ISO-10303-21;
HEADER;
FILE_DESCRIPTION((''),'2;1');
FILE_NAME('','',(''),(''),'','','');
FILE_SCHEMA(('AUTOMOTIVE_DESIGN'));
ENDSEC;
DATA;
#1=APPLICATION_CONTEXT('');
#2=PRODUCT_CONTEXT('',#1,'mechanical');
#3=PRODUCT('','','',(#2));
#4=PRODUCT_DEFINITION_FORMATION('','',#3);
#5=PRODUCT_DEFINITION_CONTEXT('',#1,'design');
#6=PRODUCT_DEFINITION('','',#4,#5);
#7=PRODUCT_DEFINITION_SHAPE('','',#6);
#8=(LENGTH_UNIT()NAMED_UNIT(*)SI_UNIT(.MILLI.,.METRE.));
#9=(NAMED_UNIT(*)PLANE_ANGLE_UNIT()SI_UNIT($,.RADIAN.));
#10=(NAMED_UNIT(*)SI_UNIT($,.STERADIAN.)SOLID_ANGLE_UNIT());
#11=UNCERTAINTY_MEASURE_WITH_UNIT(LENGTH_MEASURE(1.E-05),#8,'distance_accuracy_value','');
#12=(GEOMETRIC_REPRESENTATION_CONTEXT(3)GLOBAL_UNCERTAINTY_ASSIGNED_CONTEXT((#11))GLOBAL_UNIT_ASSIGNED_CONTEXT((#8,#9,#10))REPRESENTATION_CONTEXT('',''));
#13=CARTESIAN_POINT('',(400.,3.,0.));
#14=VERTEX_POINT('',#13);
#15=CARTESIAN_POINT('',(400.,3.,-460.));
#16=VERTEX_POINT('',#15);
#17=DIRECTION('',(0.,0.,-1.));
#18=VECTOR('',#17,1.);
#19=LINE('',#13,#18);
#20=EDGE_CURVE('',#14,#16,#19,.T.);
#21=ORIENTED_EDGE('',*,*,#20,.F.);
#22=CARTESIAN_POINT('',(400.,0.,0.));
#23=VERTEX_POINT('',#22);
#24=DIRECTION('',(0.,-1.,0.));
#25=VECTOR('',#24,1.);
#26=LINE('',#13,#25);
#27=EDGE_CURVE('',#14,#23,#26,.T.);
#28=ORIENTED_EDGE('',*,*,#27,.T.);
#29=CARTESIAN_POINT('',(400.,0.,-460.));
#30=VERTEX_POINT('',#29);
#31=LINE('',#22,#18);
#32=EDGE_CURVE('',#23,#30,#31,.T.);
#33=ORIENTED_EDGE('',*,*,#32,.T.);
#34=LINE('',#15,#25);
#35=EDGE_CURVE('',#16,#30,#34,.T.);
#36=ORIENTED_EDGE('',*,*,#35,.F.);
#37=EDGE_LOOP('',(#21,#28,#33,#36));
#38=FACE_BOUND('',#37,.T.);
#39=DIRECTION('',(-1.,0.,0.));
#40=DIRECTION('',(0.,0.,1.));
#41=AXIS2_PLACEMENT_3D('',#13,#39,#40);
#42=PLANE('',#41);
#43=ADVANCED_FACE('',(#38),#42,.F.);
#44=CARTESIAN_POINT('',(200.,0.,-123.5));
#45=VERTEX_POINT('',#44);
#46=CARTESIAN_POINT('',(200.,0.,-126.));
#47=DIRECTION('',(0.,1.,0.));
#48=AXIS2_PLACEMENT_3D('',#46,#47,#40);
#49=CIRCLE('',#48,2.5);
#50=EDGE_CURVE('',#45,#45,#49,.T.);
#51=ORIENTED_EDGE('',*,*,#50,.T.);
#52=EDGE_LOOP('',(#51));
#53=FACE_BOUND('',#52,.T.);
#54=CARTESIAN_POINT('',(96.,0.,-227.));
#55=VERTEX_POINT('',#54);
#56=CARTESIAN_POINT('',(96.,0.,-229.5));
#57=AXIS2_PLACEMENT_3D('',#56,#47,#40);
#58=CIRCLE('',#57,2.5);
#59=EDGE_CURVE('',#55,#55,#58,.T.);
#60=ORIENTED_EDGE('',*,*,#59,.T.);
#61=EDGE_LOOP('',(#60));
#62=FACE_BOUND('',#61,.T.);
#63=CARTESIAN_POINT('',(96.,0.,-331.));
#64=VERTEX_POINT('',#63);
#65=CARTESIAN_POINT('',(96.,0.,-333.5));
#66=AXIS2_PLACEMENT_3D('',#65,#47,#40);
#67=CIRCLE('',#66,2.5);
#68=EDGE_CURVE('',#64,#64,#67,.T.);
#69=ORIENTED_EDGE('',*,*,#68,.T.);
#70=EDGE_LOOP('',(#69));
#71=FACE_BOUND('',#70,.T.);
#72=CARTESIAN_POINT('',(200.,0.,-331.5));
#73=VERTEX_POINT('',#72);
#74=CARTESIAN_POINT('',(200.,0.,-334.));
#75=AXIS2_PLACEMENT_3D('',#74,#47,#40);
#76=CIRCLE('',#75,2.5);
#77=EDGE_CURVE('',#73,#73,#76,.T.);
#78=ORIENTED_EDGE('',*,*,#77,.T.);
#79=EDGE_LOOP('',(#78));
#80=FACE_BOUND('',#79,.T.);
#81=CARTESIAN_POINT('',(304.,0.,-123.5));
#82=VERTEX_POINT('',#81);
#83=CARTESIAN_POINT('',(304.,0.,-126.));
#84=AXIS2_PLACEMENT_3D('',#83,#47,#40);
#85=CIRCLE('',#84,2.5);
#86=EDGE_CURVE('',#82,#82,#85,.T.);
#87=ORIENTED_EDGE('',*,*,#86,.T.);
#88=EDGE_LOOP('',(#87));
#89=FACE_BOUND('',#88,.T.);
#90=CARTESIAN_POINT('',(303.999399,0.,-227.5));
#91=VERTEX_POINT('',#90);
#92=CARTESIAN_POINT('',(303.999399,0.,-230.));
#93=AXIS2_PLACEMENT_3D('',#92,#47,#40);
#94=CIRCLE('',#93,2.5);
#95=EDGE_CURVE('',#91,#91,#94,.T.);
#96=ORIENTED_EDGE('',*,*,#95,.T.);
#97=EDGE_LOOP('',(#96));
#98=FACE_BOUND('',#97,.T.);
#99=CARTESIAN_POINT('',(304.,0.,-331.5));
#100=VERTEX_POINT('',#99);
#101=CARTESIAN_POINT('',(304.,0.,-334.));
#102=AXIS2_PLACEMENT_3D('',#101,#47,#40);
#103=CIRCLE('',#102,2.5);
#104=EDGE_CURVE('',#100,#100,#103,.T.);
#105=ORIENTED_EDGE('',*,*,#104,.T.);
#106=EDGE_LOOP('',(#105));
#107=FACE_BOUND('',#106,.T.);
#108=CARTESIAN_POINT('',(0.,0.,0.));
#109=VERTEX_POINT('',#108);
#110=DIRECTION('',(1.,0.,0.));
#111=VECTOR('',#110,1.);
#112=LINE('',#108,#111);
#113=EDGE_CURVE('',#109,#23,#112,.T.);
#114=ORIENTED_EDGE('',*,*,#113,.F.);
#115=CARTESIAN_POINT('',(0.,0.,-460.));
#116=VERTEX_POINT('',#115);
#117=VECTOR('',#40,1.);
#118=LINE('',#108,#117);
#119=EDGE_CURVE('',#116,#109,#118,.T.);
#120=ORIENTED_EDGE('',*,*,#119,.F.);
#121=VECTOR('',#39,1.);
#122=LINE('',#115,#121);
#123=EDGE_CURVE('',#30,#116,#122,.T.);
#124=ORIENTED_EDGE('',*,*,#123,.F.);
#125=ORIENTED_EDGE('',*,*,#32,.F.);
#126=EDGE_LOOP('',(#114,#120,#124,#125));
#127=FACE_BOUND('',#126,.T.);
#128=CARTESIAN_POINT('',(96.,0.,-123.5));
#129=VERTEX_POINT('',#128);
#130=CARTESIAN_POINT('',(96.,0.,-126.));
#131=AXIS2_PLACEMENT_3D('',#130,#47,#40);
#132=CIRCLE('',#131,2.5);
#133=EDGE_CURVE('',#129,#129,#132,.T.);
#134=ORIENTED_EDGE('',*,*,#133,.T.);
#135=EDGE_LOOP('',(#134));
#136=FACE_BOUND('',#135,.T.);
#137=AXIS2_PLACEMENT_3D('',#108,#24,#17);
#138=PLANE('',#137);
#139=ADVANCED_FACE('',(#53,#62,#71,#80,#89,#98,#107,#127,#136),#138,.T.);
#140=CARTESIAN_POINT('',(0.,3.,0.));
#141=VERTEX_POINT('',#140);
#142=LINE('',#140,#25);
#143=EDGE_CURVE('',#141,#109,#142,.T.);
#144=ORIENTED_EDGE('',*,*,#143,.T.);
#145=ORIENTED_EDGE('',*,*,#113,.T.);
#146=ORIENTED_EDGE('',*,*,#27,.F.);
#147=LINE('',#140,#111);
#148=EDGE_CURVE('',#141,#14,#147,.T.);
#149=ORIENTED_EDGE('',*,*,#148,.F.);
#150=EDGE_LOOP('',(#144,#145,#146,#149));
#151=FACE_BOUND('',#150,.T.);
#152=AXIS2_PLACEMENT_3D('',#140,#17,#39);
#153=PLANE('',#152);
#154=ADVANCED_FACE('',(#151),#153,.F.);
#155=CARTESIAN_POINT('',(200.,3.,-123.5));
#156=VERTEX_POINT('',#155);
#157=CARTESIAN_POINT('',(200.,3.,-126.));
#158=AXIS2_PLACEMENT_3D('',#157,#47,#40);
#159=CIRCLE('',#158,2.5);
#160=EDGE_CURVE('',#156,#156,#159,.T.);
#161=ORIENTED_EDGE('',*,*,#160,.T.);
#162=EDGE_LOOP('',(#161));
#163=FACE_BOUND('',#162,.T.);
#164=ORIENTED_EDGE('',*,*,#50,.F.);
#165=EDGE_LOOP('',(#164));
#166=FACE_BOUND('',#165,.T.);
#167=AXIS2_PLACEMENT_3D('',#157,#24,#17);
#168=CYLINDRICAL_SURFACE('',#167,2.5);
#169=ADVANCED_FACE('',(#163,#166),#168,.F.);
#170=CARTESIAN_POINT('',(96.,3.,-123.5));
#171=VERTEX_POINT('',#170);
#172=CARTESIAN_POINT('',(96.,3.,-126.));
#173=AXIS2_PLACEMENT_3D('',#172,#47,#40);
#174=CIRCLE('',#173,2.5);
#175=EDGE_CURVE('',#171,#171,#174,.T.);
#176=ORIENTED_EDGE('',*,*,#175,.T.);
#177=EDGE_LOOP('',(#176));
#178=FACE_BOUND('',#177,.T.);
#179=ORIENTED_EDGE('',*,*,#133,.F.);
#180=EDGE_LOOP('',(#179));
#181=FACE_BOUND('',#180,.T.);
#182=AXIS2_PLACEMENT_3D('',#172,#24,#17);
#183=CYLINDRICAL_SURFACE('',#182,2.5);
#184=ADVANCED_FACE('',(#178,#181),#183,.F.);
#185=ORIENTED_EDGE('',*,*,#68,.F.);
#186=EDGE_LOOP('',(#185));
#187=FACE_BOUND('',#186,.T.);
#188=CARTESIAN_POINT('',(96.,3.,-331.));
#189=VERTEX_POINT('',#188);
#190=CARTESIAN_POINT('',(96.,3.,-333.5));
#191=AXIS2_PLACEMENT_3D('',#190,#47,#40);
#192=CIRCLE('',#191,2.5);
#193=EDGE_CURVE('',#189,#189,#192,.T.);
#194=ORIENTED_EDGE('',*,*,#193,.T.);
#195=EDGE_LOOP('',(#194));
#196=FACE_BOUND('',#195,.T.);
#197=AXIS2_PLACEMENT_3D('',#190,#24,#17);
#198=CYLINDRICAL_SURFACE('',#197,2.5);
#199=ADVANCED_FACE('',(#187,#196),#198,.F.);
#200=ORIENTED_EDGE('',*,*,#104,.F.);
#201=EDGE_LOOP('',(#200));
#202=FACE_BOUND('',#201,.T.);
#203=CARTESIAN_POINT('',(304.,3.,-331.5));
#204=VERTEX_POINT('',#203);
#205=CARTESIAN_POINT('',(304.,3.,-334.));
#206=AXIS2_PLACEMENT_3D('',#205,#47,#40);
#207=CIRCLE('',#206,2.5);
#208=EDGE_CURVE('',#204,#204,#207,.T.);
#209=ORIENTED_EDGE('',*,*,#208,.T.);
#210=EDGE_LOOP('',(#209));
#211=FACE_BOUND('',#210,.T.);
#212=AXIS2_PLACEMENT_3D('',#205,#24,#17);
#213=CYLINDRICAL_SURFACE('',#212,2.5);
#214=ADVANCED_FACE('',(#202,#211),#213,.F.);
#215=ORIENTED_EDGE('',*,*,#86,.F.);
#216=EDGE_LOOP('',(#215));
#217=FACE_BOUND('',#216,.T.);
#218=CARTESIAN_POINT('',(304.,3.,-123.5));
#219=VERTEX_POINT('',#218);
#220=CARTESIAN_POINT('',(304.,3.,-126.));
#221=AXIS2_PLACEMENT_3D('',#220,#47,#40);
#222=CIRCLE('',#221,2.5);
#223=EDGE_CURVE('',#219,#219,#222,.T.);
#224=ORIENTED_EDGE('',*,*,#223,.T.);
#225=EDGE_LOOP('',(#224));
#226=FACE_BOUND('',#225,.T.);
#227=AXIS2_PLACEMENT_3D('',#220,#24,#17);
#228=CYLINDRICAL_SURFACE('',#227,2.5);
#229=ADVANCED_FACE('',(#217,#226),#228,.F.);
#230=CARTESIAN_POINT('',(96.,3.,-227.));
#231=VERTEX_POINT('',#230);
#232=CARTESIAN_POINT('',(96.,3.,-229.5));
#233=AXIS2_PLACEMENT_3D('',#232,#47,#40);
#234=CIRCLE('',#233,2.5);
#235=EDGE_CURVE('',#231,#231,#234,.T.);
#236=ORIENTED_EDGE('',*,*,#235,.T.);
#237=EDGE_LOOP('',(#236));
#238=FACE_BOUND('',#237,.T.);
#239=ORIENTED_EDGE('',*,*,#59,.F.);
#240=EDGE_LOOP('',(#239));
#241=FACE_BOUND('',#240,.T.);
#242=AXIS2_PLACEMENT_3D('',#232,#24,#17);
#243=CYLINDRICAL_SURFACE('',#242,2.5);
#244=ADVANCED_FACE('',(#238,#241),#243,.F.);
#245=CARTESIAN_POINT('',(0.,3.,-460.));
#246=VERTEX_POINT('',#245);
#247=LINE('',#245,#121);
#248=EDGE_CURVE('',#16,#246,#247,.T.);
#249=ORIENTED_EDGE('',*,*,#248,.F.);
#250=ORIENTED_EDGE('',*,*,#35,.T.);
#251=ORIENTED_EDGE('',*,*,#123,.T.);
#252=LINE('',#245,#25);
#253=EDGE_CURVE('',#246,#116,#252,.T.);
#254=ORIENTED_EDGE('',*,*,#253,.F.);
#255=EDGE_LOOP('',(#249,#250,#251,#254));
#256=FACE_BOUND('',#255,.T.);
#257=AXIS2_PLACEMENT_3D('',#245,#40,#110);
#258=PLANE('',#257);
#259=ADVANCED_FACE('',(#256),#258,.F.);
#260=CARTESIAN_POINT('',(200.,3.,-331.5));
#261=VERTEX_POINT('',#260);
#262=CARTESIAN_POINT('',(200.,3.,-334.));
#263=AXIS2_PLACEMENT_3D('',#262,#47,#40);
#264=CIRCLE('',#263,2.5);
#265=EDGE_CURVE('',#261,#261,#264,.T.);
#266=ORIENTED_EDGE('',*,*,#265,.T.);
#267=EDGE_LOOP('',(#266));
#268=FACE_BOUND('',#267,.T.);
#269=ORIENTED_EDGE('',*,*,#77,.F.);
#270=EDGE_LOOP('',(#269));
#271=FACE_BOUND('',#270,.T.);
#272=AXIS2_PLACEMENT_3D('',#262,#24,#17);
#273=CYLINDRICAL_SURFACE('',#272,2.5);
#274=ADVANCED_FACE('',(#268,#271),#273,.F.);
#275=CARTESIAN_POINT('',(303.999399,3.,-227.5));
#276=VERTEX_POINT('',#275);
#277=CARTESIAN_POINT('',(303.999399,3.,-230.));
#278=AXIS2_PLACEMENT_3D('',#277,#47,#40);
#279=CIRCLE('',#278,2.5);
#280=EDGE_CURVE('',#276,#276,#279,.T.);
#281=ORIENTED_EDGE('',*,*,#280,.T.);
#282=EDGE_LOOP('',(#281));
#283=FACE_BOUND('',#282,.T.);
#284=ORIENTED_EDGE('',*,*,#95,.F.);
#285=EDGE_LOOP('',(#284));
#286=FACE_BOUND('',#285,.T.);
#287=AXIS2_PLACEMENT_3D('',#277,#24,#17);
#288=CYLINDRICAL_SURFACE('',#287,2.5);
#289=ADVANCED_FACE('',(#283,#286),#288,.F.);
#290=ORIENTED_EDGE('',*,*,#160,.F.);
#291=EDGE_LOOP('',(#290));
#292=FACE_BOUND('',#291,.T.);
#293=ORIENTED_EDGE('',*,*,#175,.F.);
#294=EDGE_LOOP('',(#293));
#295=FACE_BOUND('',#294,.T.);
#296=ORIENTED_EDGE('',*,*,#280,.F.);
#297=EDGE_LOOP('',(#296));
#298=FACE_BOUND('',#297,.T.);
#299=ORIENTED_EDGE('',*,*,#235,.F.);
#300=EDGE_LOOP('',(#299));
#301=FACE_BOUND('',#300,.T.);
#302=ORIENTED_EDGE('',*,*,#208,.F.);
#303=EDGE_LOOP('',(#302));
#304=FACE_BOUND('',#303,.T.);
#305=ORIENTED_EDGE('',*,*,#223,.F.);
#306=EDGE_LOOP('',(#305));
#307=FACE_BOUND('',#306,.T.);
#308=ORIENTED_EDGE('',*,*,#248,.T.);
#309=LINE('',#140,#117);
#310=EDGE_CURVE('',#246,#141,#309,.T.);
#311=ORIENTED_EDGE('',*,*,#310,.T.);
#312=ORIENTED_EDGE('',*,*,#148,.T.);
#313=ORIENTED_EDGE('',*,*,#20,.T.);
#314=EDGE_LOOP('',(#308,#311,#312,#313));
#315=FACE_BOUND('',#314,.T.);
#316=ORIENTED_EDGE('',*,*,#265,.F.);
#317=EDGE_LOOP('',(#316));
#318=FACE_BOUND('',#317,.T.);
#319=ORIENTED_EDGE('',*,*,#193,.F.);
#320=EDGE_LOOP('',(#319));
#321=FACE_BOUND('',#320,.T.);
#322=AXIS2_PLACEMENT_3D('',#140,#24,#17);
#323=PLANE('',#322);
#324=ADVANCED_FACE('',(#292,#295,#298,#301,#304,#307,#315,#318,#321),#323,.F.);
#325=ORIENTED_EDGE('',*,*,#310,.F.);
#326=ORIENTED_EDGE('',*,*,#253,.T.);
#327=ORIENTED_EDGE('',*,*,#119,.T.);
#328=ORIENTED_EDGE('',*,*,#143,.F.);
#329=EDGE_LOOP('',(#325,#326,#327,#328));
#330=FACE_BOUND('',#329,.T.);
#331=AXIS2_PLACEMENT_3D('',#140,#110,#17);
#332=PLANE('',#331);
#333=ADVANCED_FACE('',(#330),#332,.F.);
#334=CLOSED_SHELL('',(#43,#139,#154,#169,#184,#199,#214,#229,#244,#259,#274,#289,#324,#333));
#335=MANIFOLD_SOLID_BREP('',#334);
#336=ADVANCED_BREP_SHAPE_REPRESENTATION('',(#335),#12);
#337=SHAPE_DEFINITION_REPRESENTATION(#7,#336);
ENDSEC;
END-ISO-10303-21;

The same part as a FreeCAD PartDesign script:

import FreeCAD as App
import Part
import Sketcher
Q = App.Units.Quantity


def add_polygon(sketch, points):
    """Adds a closed chain of lines whose ends are joined by coincident constraints."""
    first, n = sketch.GeometryCount, len(points)
    for a, b in zip(points, points[1:] + points[:1]):
        sketch.addGeometry(Part.LineSegment(App.Vector(*a, 0), App.Vector(*b, 0)), False)
    for i in range(n):
        sketch.addConstraint(Sketcher.Constraint("Coincident", first + i, 2, first + (i + 1) % n, 1))

doc = App.newDocument("Part")
body = doc.addObject("PartDesign::Body", "Body")

sketch1 = body.newObject("Sketcher::SketchObject", "Sketch")
sketch1.AttachmentSupport = (doc.getObject("XZ_Plane"), [""])
sketch1.MapMode = "FlatFace"
add_polygon(sketch1, [(0, -460), (0, 0), (400, 0), (400, -460)])
sketch1.addGeometry(Part.Circle(App.Vector(96, -126, 0), App.Vector(0, 0, 1), 2.5), False)
sketch1.addGeometry(Part.Circle(App.Vector(96, -229.5, 0), App.Vector(0, 0, 1), 2.5), False)
sketch1.addGeometry(Part.Circle(App.Vector(200, -126, 0), App.Vector(0, 0, 1), 2.5), False)
sketch1.addGeometry(Part.Circle(App.Vector(304, -126, 0), App.Vector(0, 0, 1), 2.5), False)
sketch1.addGeometry(Part.Circle(App.Vector(96, -333.5, 0), App.Vector(0, 0, 1), 2.5), False)
sketch1.addGeometry(Part.Circle(App.Vector(304, -230, 0), App.Vector(0, 0, 1), 2.5), False)
sketch1.addGeometry(Part.Circle(App.Vector(200, -334, 0), App.Vector(0, 0, 1), 2.5), False)
sketch1.addGeometry(Part.Circle(App.Vector(304, -334, 0), App.Vector(0, 0, 1), 2.5), False)
sketch1.addConstraint([
    Sketcher.Constraint("Vertical", 0),
    Sketcher.Constraint("Horizontal", 1),
    Sketcher.Constraint("Vertical", 2),
    Sketcher.Constraint("Horizontal", 3),
    Sketcher.Constraint("Coincident", 0, 2, -1, 1),
    Sketcher.Constraint("Equal", 4, 5),
    Sketcher.Constraint("Equal", 5, 6),
    Sketcher.Constraint("Equal", 6, 7),
    Sketcher.Constraint("Equal", 7, 8),
    Sketcher.Constraint("Equal", 8, 9),
    Sketcher.Constraint("Equal", 9, 10),
    Sketcher.Constraint("Equal", 10, 11),
    Sketcher.Constraint("Horizontal", 4, 3, 6, 3),
    Sketcher.Constraint("Horizontal", 6, 3, 7, 3),
    Sketcher.Constraint("Horizontal", 10, 3, 11, 3),
    Sketcher.Constraint("Vertical", 4, 3, 5, 3),
    Sketcher.Constraint("Vertical", 5, 3, 8, 3),
    Sketcher.Constraint("Vertical", 6, 3, 10, 3),
    Sketcher.Constraint("Vertical", 7, 3, 11, 3),
    Sketcher.Constraint("Diameter", 4, Q("5 mm")),
    Sketcher.Constraint("DistanceX", 1, 1, 1, 2, Q("400 mm")),
    Sketcher.Constraint("DistanceY", 0, 1, 0, 2, Q("460 mm")),
    Sketcher.Constraint("DistanceX", -1, 1, 4, 3, Q("96 mm")),
    Sketcher.Constraint("DistanceY", 4, 3, -1, 1, Q("126 mm")),
    Sketcher.Constraint("DistanceX", -1, 1, 6, 3, Q("200 mm")),
    Sketcher.Constraint("DistanceX", -1, 1, 7, 3, Q("304 mm")),
    Sketcher.Constraint("DistanceY", 9, 3, -1, 1, Q("230 mm")),
    Sketcher.Constraint("DistanceY", 10, 3, -1, 1, Q("334 mm")),
    Sketcher.Constraint("DistanceY", 8, 3, 5, 3, Q("104 mm")),
    Sketcher.Constraint("DistanceY", 5, 3, -1, 1, Q("229.5 mm")),
    Sketcher.Constraint("DistanceX", -1, 1, 9, 3, Q("303.999399 mm")),
])
pad1 = body.newObject("PartDesign::Pad", "Pad")
pad1.Profile = sketch1
pad1.Length = 3
pad1.Reversed = True

doc.recompute()
